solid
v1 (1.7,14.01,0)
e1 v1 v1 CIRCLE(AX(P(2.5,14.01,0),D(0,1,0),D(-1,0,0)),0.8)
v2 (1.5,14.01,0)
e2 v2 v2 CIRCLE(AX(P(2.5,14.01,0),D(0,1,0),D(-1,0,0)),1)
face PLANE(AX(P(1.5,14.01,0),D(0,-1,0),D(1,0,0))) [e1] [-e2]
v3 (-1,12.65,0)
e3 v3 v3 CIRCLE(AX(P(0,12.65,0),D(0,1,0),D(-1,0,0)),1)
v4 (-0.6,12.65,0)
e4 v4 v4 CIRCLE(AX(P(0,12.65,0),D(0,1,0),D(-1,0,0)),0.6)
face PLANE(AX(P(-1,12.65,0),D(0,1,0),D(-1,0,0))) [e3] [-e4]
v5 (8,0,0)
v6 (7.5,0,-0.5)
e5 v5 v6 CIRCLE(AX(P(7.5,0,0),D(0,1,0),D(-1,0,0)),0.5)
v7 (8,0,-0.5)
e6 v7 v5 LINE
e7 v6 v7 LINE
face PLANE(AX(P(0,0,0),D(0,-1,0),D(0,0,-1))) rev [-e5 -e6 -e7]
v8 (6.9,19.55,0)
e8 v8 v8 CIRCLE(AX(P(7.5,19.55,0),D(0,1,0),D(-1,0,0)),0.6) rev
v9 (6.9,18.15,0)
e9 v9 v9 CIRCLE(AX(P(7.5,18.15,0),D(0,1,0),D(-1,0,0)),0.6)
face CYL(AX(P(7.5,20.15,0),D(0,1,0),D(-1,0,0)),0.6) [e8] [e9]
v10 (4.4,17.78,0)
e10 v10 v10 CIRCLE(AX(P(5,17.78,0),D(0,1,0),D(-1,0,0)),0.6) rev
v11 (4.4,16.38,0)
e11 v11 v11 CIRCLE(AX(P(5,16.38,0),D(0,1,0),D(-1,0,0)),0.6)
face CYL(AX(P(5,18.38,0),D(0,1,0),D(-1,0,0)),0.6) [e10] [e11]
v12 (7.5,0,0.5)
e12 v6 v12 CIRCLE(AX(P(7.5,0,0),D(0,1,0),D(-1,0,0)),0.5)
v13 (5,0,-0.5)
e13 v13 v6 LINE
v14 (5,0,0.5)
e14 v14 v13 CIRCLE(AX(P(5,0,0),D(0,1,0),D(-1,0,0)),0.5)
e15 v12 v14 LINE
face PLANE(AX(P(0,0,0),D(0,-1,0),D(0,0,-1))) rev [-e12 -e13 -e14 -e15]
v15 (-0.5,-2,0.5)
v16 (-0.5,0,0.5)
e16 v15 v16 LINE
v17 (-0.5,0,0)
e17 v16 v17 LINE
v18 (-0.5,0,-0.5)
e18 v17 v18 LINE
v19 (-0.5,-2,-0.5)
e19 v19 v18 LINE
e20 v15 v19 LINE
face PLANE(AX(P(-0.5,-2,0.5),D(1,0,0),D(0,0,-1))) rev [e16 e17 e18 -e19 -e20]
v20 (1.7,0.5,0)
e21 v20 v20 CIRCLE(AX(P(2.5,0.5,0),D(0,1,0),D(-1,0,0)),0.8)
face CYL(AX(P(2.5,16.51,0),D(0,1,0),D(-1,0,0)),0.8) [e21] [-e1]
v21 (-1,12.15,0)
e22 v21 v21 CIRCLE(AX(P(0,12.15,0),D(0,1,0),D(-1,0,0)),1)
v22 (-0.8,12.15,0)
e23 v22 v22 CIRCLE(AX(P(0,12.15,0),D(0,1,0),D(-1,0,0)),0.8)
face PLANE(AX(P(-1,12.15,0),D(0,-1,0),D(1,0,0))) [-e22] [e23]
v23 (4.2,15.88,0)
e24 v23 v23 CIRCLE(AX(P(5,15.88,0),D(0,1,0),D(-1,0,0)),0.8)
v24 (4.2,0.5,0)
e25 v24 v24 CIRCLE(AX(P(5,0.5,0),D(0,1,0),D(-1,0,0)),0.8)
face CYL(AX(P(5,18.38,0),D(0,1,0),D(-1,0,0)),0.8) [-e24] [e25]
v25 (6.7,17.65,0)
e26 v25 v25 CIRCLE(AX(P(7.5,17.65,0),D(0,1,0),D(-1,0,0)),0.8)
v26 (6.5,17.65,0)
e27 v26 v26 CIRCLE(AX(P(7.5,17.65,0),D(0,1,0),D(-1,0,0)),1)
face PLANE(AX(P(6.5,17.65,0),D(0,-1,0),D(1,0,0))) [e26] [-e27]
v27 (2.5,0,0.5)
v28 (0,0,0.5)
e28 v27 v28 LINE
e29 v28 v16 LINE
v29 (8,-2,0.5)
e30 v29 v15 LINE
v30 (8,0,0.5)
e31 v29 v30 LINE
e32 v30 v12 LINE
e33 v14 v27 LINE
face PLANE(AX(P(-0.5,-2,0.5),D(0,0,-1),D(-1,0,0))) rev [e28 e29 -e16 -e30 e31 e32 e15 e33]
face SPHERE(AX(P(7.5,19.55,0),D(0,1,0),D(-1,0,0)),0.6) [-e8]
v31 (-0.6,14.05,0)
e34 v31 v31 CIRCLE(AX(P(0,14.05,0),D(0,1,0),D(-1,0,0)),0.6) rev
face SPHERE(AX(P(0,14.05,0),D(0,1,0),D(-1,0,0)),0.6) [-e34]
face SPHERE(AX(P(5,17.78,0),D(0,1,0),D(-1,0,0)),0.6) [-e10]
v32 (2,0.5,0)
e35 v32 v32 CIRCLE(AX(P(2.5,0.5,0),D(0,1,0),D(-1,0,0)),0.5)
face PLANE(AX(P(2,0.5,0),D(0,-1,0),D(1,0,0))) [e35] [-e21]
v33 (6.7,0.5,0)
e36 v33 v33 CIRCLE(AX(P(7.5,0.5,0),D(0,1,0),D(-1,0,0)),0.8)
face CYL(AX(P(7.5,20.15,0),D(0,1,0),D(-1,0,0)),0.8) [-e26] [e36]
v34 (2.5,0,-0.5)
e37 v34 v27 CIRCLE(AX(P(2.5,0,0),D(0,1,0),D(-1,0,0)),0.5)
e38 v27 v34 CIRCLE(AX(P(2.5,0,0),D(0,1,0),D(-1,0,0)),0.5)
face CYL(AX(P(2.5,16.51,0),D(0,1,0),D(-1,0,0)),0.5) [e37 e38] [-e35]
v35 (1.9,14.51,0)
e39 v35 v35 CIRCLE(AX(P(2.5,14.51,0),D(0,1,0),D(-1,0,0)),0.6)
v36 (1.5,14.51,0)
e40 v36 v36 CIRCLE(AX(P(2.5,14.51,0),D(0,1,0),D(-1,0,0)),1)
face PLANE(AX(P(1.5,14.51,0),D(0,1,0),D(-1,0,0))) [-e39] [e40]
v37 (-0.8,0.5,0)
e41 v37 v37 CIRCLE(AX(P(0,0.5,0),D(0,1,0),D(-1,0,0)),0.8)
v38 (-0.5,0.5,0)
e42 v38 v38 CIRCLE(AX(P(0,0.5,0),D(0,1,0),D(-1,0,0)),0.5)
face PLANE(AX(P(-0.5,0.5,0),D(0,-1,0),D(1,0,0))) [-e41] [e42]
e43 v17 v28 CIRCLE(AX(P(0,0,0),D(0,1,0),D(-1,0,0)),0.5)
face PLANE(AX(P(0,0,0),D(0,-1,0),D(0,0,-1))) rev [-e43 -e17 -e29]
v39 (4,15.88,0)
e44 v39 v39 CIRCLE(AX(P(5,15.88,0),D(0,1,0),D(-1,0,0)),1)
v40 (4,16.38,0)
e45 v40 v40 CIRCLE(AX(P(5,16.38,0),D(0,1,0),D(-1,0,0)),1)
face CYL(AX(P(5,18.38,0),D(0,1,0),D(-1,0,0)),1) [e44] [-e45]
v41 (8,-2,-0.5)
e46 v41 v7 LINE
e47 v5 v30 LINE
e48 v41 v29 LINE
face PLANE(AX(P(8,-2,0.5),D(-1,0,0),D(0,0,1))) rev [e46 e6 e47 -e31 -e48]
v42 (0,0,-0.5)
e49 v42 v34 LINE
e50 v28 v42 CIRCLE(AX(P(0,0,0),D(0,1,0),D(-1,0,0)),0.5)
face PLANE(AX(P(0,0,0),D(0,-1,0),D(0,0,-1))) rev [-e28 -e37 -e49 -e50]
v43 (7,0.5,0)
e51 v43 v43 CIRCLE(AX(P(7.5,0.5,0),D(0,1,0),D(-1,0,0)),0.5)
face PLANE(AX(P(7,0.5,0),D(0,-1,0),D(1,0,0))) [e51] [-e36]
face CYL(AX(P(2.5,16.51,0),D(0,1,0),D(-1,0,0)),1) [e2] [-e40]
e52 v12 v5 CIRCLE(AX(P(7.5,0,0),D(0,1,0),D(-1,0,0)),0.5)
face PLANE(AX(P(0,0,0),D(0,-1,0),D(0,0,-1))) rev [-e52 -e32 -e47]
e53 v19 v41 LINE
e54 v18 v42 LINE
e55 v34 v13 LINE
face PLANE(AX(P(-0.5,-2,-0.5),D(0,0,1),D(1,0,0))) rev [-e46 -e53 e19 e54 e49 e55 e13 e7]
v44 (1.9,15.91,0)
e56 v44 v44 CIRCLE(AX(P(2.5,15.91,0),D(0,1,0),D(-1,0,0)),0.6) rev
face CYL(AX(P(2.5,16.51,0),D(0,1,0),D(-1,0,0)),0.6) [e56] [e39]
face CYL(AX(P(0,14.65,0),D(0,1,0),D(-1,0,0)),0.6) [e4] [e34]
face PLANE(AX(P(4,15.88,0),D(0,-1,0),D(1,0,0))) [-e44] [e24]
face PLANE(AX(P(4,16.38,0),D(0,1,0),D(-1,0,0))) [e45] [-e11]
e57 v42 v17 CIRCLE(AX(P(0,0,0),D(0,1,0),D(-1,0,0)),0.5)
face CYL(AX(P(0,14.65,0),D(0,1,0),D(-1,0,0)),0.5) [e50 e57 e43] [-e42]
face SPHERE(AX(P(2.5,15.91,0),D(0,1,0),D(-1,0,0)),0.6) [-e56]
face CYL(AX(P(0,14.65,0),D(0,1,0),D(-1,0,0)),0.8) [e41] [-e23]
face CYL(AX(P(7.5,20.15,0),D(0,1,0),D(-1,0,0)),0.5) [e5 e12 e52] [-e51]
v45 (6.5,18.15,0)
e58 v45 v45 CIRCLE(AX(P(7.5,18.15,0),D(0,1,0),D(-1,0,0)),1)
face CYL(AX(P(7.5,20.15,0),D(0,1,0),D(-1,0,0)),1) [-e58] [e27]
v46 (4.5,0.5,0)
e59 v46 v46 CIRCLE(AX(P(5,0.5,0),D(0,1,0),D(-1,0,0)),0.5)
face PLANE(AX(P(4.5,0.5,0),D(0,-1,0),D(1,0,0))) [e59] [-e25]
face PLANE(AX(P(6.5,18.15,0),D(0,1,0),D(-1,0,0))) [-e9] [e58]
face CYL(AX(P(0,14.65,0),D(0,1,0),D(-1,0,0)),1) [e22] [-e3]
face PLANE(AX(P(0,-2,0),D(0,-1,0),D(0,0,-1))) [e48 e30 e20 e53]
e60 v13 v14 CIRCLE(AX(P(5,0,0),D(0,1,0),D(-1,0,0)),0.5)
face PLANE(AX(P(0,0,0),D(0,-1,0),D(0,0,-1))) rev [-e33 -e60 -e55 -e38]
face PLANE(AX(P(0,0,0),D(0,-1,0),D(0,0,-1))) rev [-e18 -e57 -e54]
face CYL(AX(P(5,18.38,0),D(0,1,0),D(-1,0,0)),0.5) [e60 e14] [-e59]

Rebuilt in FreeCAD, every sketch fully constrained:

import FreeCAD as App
import Part
import Sketcher
from FreeCAD import Vector
Q = App.Units.Quantity


def edges_at(feature, points):
    """Names of the edges that pass closest to the given points."""
    edges = feature.Shape.Edges
    near = lambda p: min(range(len(edges)), key=lambda i: edges[i].distToShape(Part.Vertex(*p))[0])
    return sorted({f"Edge{near(p) + 1}" for p in points})

doc = App.newDocument("Part")
body = doc.addObject("PartDesign::Body", "Body")

# Sketch on XY plane
sketch1 = doc.addObject("Sketcher::SketchObject", "Sketch")
body.addObject(sketch1)
sketch1.AttachmentSupport = (doc.XY_Plane, [""])
sketch1.MapMode = "FlatFace"
sketch1.addGeometry([
    Part.LineSegment(Vector(-0.5, 0, 0), Vector(0, 0, 0)),  # 0
    Part.LineSegment(Vector(0, 0, 0), Vector(0, 14.65, 0)),  # 1
    Part.LineSegment(Vector(0, 14.65, 0), Vector(-0.6, 14.65, 0)),  # 2
    Part.LineSegment(Vector(-0.6, 14.65, 0), Vector(-0.6, 12.65, 0)),  # 3
    Part.LineSegment(Vector(-0.6, 12.65, 0), Vector(-1, 12.65, 0)),  # 4
    Part.LineSegment(Vector(-1, 12.65, 0), Vector(-1, 12.15, 0)),  # 5
    Part.LineSegment(Vector(-1, 12.15, 0), Vector(-0.8, 12.15, 0)),  # 6
    Part.LineSegment(Vector(-0.8, 12.15, 0), Vector(-0.8, 0.5, 0)),  # 7
    Part.LineSegment(Vector(-0.8, 0.5, 0), Vector(-0.5, 0.5, 0)),  # 8
    Part.LineSegment(Vector(-0.5, 0.5, 0), Vector(-0.5, 0, 0)),  # 9
], False)
sketch1.addConstraint([
    Sketcher.Constraint("Coincident", 0, 2, 1, 1),
    Sketcher.Constraint("Coincident", 1, 2, 2, 1),
    Sketcher.Constraint("Coincident", 2, 2, 3, 1),
    Sketcher.Constraint("Coincident", 3, 2, 4, 1),
    Sketcher.Constraint("Coincident", 4, 2, 5, 1),
    Sketcher.Constraint("Coincident", 5, 2, 6, 1),
    Sketcher.Constraint("Coincident", 6, 2, 7, 1),
    Sketcher.Constraint("Coincident", 7, 2, 8, 1),
    Sketcher.Constraint("Coincident", 8, 2, 9, 1),
    Sketcher.Constraint("Coincident", 9, 2, 0, 1),
    Sketcher.Constraint("Horizontal", 0),
    Sketcher.Constraint("Vertical", 1),
    Sketcher.Constraint("Horizontal", 2),
    Sketcher.Constraint("Vertical", 3),
    Sketcher.Constraint("Horizontal", 4),
    Sketcher.Constraint("Vertical", 5),
    Sketcher.Constraint("Horizontal", 6),
    Sketcher.Constraint("Vertical", 7),
    Sketcher.Constraint("Horizontal", 8),
    Sketcher.Constraint("Vertical", 9),
    Sketcher.Constraint("Coincident", 0, 2, -1, 1),
    Sketcher.Constraint("Equal", 0, 5),
    Sketcher.Constraint("Equal", 5, 9),
    Sketcher.Constraint("DistanceY", 3, 2, 3, 1, Q("2 mm")),
    Sketcher.Constraint("DistanceX", 0, 1, 0, 2, Q("0.5 mm")),
    Sketcher.Constraint("DistanceX", 2, 2, 2, 1, Q("0.6 mm")),
    Sketcher.Constraint("DistanceX", 4, 2, 4, 1, Q("0.4 mm")),
    Sketcher.Constraint("DistanceX", 6, 1, 6, 2, Q("0.2 mm")),
    Sketcher.Constraint("DistanceY", 1, 1, 1, 2, Q("14.65 mm")),
])
revolution = doc.addObject("PartDesign::Revolution", "Revolution")
body.addObject(revolution)
revolution.Profile = sketch1
revolution.ReferenceAxis = (sketch1, ["V_Axis"])
revolution.Angle = 360
doc.recompute()

fillet = doc.addObject("PartDesign::Fillet", "Fillet")
body.addObject(fillet)
fillet.Base = (revolution, edges_at(revolution, [(0.6, 14.65, 0)]))
fillet.Radius = 0.6
body2 = doc.addObject("PartDesign::Body", "Body001")

# Sketch on XY plane
sketch2 = doc.addObject("Sketcher::SketchObject", "Sketch001")
body2.addObject(sketch2)
sketch2.AttachmentSupport = (doc.getObject("XY_Plane001"), [""])
sketch2.MapMode = "FlatFace"
sketch2.addGeometry([
    Part.LineSegment(Vector(2, 0, 0), Vector(2.5, 0, 0)),  # 0
    Part.LineSegment(Vector(2.5, 0, 0), Vector(2.5, 16.51, 0)),  # 1
    Part.LineSegment(Vector(2.5, 16.51, 0), Vector(1.9, 16.51, 0)),  # 2
    Part.LineSegment(Vector(1.9, 16.51, 0), Vector(1.9, 14.51, 0)),  # 3
    Part.LineSegment(Vector(1.9, 14.51, 0), Vector(1.5, 14.51, 0)),  # 4
    Part.LineSegment(Vector(1.5, 14.51, 0), Vector(1.5, 14.01, 0)),  # 5
    Part.LineSegment(Vector(1.5, 14.01, 0), Vector(1.7, 14.01, 0)),  # 6
    Part.LineSegment(Vector(1.7, 14.01, 0), Vector(1.7, 0.5, 0)),  # 7
    Part.LineSegment(Vector(1.7, 0.5, 0), Vector(2, 0.5, 0)),  # 8
    Part.LineSegment(Vector(2, 0.5, 0), Vector(2, 0, 0)),  # 9
], False)
sketch2.addGeometry(Part.LineSegment(Vector(2.5, 16.51, 0), Vector(2.5, 0, 0)), True)  # axis
sketch2.addConstraint([
    Sketcher.Constraint("Coincident", 0, 2, 1, 1),
    Sketcher.Constraint("Coincident", 1, 2, 2, 1),
    Sketcher.Constraint("Coincident", 2, 2, 3, 1),
    Sketcher.Constraint("Coincident", 3, 2, 4, 1),
    Sketcher.Constraint("Coincident", 4, 2, 5, 1),
    Sketcher.Constraint("Coincident", 5, 2, 6, 1),
    Sketcher.Constraint("Coincident", 6, 2, 7, 1),
    Sketcher.Constraint("Coincident", 7, 2, 8, 1),
    Sketcher.Constraint("Coincident", 8, 2, 9, 1),
    Sketcher.Constraint("Coincident", 9, 2, 0, 1),
    Sketcher.Constraint("Horizontal", 0),
    Sketcher.Constraint("Vertical", 1),
    Sketcher.Constraint("Horizontal", 2),
    Sketcher.Constraint("Vertical", 3),
    Sketcher.Constraint("Horizontal", 4),
    Sketcher.Constraint("Vertical", 5),
    Sketcher.Constraint("Horizontal", 6),
    Sketcher.Constraint("Vertical", 7),
    Sketcher.Constraint("Horizontal", 8),
    Sketcher.Constraint("Vertical", 9),
    Sketcher.Constraint("Vertical", 10),
    Sketcher.Constraint("Coincident", 10, 1, 1, 2),
    Sketcher.Constraint("PointOnObject", 0, 2, -1),
    Sketcher.Constraint("PointOnObject", 10, 2, -1),
    Sketcher.Constraint("Equal", 0, 5),
    Sketcher.Constraint("Equal", 5, 9),
    Sketcher.Constraint("DistanceY", 3, 2, 3, 1, Q("2 mm")),
    Sketcher.Constraint("DistanceX", 0, 1, 0, 2, Q("0.5 mm")),
    Sketcher.Constraint("DistanceX", 2, 2, 2, 1, Q("0.6 mm")),
    Sketcher.Constraint("DistanceX", 4, 2, 4, 1, Q("0.4 mm")),
    Sketcher.Constraint("DistanceX", 6, 1, 6, 2, Q("0.2 mm")),
    Sketcher.Constraint("DistanceX", -1, 1, 8, 2, Q("2 mm")),
    Sketcher.Constraint("DistanceY", 1, 1, 1, 2, Q("16.51 mm")),
])
revolution2 = doc.addObject("PartDesign::Revolution", "Revolution001")
body2.addObject(revolution2)
revolution2.Profile = sketch2
revolution2.ReferenceAxis = (sketch2, ["Axis0"])
revolution2.Angle = 360
doc.recompute()

fillet2 = doc.addObject("PartDesign::Fillet", "Fillet001")
body2.addObject(fillet2)
fillet2.Base = (revolution2, edges_at(revolution2, [(3.1, 16.51, 0)]))
fillet2.Radius = 0.6
body3 = doc.addObject("PartDesign::Body", "Body002")

# Sketch on XY plane
sketch3 = doc.addObject("Sketcher::SketchObject", "Sketch002")
body3.addObject(sketch3)
sketch3.AttachmentSupport = (doc.getObject("XY_Plane002"), [""])
sketch3.MapMode = "FlatFace"
sketch3.addGeometry([
    Part.LineSegment(Vector(4.5, 0, 0), Vector(5, 0, 0)),  # 0
    Part.LineSegment(Vector(5, 0, 0), Vector(5, 18.38, 0)),  # 1
    Part.LineSegment(Vector(5, 18.38, 0), Vector(4.4, 18.38, 0)),  # 2
    Part.LineSegment(Vector(4.4, 18.38, 0), Vector(4.4, 16.38, 0)),  # 3
    Part.LineSegment(Vector(4.4, 16.38, 0), Vector(4, 16.38, 0)),  # 4
    Part.LineSegment(Vector(4, 16.38, 0), Vector(4, 15.88, 0)),  # 5
    Part.LineSegment(Vector(4, 15.88, 0), Vector(4.2, 15.88, 0)),  # 6
    Part.LineSegment(Vector(4.2, 15.88, 0), Vector(4.2, 0.5, 0)),  # 7
    Part.LineSegment(Vector(4.2, 0.5, 0), Vector(4.5, 0.5, 0)),  # 8
    Part.LineSegment(Vector(4.5, 0.5, 0), Vector(4.5, 0, 0)),  # 9
], False)
sketch3.addGeometry(Part.LineSegment(Vector(5, 18.38, 0), Vector(5, 0, 0)), True)  # axis
sketch3.addConstraint([
    Sketcher.Constraint("Coincident", 0, 2, 1, 1),
    Sketcher.Constraint("Coincident", 1, 2, 2, 1),
    Sketcher.Constraint("Coincident", 2, 2, 3, 1),
    Sketcher.Constraint("Coincident", 3, 2, 4, 1),
    Sketcher.Constraint("Coincident", 4, 2, 5, 1),
    Sketcher.Constraint("Coincident", 5, 2, 6, 1),
    Sketcher.Constraint("Coincident", 6, 2, 7, 1),
    Sketcher.Constraint("Coincident", 7, 2, 8, 1),
    Sketcher.Constraint("Coincident", 8, 2, 9, 1),
    Sketcher.Constraint("Coincident", 9, 2, 0, 1),
    Sketcher.Constraint("Horizontal", 0),
    Sketcher.Constraint("Vertical", 1),
    Sketcher.Constraint("Horizontal", 2),
    Sketcher.Constraint("Vertical", 3),
    Sketcher.Constraint("Horizontal", 4),
    Sketcher.Constraint("Vertical", 5),
    Sketcher.Constraint("Horizontal", 6),
    Sketcher.Constraint("Vertical", 7),
    Sketcher.Constraint("Horizontal", 8),
    Sketcher.Constraint("Vertical", 9),
    Sketcher.Constraint("Vertical", 10),
    Sketcher.Constraint("Coincident", 10, 1, 1, 2),
    Sketcher.Constraint("PointOnObject", 0, 2, -1),
    Sketcher.Constraint("PointOnObject", 10, 2, -1),
    Sketcher.Constraint("Equal", 0, 5),
    Sketcher.Constraint("Equal", 5, 9),
    Sketcher.Constraint("DistanceY", 3, 2, 3, 1, Q("2 mm")),
    Sketcher.Constraint("DistanceX", 0, 1, 0, 2, Q("0.5 mm")),
    Sketcher.Constraint("DistanceX", 2, 2, 2, 1, Q("0.6 mm")),
    Sketcher.Constraint("DistanceX", 4, 2, 4, 1, Q("0.4 mm")),
    Sketcher.Constraint("DistanceX", 6, 1, 6, 2, Q("0.2 mm")),
    Sketcher.Constraint("DistanceX", -1, 1, 0, 2, Q("5 mm")),
    Sketcher.Constraint("DistanceY", 1, 1, 1, 2, Q("18.38 mm")),
])
revolution3 = doc.addObject("PartDesign::Revolution", "Revolution002")
body3.addObject(revolution3)
revolution3.Profile = sketch3
revolution3.ReferenceAxis = (sketch3, ["Axis0"])
revolution3.Angle = 360
doc.recompute()

fillet3 = doc.addObject("PartDesign::Fillet", "Fillet002")
body3.addObject(fillet3)
fillet3.Base = (revolution3, edges_at(revolution3, [(5.6, 18.38, 0)]))
fillet3.Radius = 0.6
body4 = doc.addObject("PartDesign::Body", "Body003")

# Sketch on XY plane
sketch4 = doc.addObject("Sketcher::SketchObject", "Sketch003")
body4.addObject(sketch4)
sketch4.AttachmentSupport = (doc.getObject("XY_Plane003"), [""])
sketch4.MapMode = "FlatFace"
sketch4.addGeometry([
    Part.LineSegment(Vector(7, 0, 0), Vector(7.5, 0, 0)),  # 0
    Part.LineSegment(Vector(7.5, 0, 0), Vector(7.5, 20.15, 0)),  # 1
    Part.LineSegment(Vector(7.5, 20.15, 0), Vector(6.9, 20.15, 0)),  # 2
    Part.LineSegment(Vector(6.9, 20.15, 0), Vector(6.9, 18.15, 0)),  # 3
    Part.LineSegment(Vector(6.9, 18.15, 0), Vector(6.5, 18.15, 0)),  # 4
    Part.LineSegment(Vector(6.5, 18.15, 0), Vector(6.5, 17.65, 0)),  # 5
    Part.LineSegment(Vector(6.5, 17.65, 0), Vector(6.7, 17.65, 0)),  # 6
    Part.LineSegment(Vector(6.7, 17.65, 0), Vector(6.7, 0.5, 0)),  # 7
    Part.LineSegment(Vector(6.7, 0.5, 0), Vector(7, 0.5, 0)),  # 8
    Part.LineSegment(Vector(7, 0.5, 0), Vector(7, 0, 0)),  # 9
], False)
sketch4.addGeometry(Part.LineSegment(Vector(7.5, 20.15, 0), Vector(7.5, 0, 0)), True)  # axis
sketch4.addConstraint([
    Sketcher.Constraint("Coincident", 0, 2, 1, 1),
    Sketcher.Constraint("Coincident", 1, 2, 2, 1),
    Sketcher.Constraint("Coincident", 2, 2, 3, 1),
    Sketcher.Constraint("Coincident", 3, 2, 4, 1),
    Sketcher.Constraint("Coincident", 4, 2, 5, 1),
    Sketcher.Constraint("Coincident", 5, 2, 6, 1),
    Sketcher.Constraint("Coincident", 6, 2, 7, 1),
    Sketcher.Constraint("Coincident", 7, 2, 8, 1),
    Sketcher.Constraint("Coincident", 8, 2, 9, 1),
    Sketcher.Constraint("Coincident", 9, 2, 0, 1),
    Sketcher.Constraint("Horizontal", 0),
    Sketcher.Constraint("Vertical", 1),
    Sketcher.Constraint("Horizontal", 2),
    Sketcher.Constraint("Vertical", 3),
    Sketcher.Constraint("Horizontal", 4),
    Sketcher.Constraint("Vertical", 5),
    Sketcher.Constraint("Horizontal", 6),
    Sketcher.Constraint("Vertical", 7),
    Sketcher.Constraint("Horizontal", 8),
    Sketcher.Constraint("Vertical", 9),
    Sketcher.Constraint("Vertical", 10),
    Sketcher.Constraint("Coincident", 10, 1, 1, 2),
    Sketcher.Constraint("PointOnObject", 0, 2, -1),
    Sketcher.Constraint("PointOnObject", 10, 2, -1),
    Sketcher.Constraint("Equal", 0, 5),
    Sketcher.Constraint("Equal", 5, 9),
    Sketcher.Constraint("DistanceY", 3, 2, 3, 1, Q("2 mm")),
    Sketcher.Constraint("DistanceX", 0, 1, 0, 2, Q("0.5 mm")),
    Sketcher.Constraint("DistanceX", 2, 2, 2, 1, Q("0.6 mm")),
    Sketcher.Constraint("DistanceX", 4, 2, 4, 1, Q("0.4 mm")),
    Sketcher.Constraint("DistanceX", 6, 1, 6, 2, Q("0.2 mm")),
    Sketcher.Constraint("DistanceX", -1, 1, 8, 2, Q("7 mm")),
    Sketcher.Constraint("DistanceY", 1, 1, 1, 2, Q("20.15 mm")),
])
revolution4 = doc.addObject("PartDesign::Revolution", "Revolution003")
body4.addObject(revolution4)
revolution4.Profile = sketch4
revolution4.ReferenceAxis = (sketch4, ["Axis0"])
revolution4.Angle = 360
doc.recompute()

fillet4 = doc.addObject("PartDesign::Fillet", "Fillet003")
body4.addObject(fillet4)
fillet4.Base = (revolution4, edges_at(revolution4, [(8.1, 20.15, 0)]))
fillet4.Radius = 0.6
body.AllowCompound = True
doc.recompute()

boolean = doc.addObject("PartDesign::Boolean", "Boolean")
body.addObject(boolean)
boolean.Type = "Fuse"
boolean.addObjects([body2])
doc.recompute()

boolean2 = doc.addObject("PartDesign::Boolean", "Boolean001")
body.addObject(boolean2)
boolean2.Type = "Fuse"
boolean2.addObjects([body3])
doc.recompute()

boolean3 = doc.addObject("PartDesign::Boolean", "Boolean002")
body.addObject(boolean3)
boolean3.Type = "Fuse"
boolean3.addObjects([body4])

# Sketch on XZ plane
sketch5 = doc.addObject("Sketcher::SketchObject", "Sketch004")
body.addObject(sketch5)
sketch5.AttachmentSupport = (doc.XZ_Plane, [""])
sketch5.MapMode = "FlatFace"
sketch5.addGeometry([
    Part.LineSegment(Vector(-0.5, 0.5, 0), Vector(-0.5, -0.5, 0)),
    Part.LineSegment(Vector(-0.5, -0.5, 0), Vector(8, -0.5, 0)),
    Part.LineSegment(Vector(8, -0.5, 0), Vector(8, 0.5, 0)),
    Part.LineSegment(Vector(8, 0.5, 0), Vector(-0.5, 0.5, 0)),
], False)
sketch5.addConstraint([
    Sketcher.Constraint("Coincident", 0, 2, 1, 1),
    Sketcher.Constraint("Coincident", 1, 2, 2, 1),
    Sketcher.Constraint("Coincident", 2, 2, 3, 1),
    Sketcher.Constraint("Coincident", 3, 2, 0, 1),
    Sketcher.Constraint("Vertical", 0),
    Sketcher.Constraint("Horizontal", 1),
    Sketcher.Constraint("Vertical", 2),
    Sketcher.Constraint("Horizontal", 3),
    Sketcher.Constraint("DistanceY", 0, 2, 0, 1, Q("1 mm")),
    Sketcher.Constraint("DistanceX", 1, 1, 1, 2, Q("8.5 mm")),
    Sketcher.Constraint("DistanceX", -1, 1, 1, 2, Q("8 mm")),
    Sketcher.Constraint("DistanceY", 0, 2, -1, 1, Q("0.5 mm")),
])
pad1 = doc.addObject("PartDesign::Pad", "Pad")
body.addObject(pad1)
pad1.Profile = sketch5
pad1.Length = 2

doc.recompute()
